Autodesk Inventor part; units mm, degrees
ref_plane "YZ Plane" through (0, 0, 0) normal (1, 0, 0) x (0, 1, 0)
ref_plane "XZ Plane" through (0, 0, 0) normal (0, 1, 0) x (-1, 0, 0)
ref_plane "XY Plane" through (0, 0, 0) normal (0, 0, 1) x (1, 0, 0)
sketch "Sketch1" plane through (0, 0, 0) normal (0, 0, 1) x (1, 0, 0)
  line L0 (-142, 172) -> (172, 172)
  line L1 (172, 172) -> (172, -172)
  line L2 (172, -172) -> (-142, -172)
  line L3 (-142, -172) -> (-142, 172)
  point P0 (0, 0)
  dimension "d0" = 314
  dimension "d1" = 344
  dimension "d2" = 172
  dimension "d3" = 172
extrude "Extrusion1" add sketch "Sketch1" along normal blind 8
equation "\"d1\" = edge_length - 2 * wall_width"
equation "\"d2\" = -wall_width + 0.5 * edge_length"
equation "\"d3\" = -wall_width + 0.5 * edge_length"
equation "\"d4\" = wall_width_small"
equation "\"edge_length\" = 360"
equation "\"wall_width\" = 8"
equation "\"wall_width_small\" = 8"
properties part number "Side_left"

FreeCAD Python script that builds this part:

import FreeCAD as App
import Part
import Sketcher

V = App.Vector
Q = App.Units.Quantity

doc = App.newDocument("Part")
body = doc.addObject("PartDesign::Body", "Body")

sketch1 = doc.addObject("Sketcher::SketchObject", "Sketch")
body.addObject(sketch1)
sketch1.AttachmentSupport = (doc.XY_Plane, [""])
sketch1.MapMode = "FlatFace"
sketch1.addGeometry([
    Part.LineSegment(V(172, 172, 0), V(-142, 172, 0)),
    Part.LineSegment(V(-142, 172, 0), V(-142, -172, 0)),
    Part.LineSegment(V(-142, -172, 0), V(172, -172, 0)),
    Part.LineSegment(V(172, -172, 0), V(172, 172, 0)),
], False)
sketch1.addConstraint([
    Sketcher.Constraint("Coincident", 0, 2, 1, 1),
    Sketcher.Constraint("Coincident", 1, 2, 2, 1),
    Sketcher.Constraint("Coincident", 2, 2, 3, 1),
    Sketcher.Constraint("Coincident", 3, 2, 0, 1),
    Sketcher.Constraint("Horizontal", 0),
    Sketcher.Constraint("Vertical", 1),
    Sketcher.Constraint("Horizontal", 2),
    Sketcher.Constraint("Vertical", 3),
    Sketcher.Constraint("DistanceX", 0, 2, 0, 1, Q("314 mm")),
    Sketcher.Constraint("DistanceY", 1, 2, 1, 1, Q("344 mm")),
    Sketcher.Constraint("DistanceY", -1, 1, 0, 2, Q("172 mm")),
    Sketcher.Constraint("DistanceX", -1, 1, 2, 2, Q("172 mm")),
])
pad1 = doc.addObject("PartDesign::Pad", "Pad")
body.addObject(pad1)
pad1.Profile = sketch1
pad1.Length = 8

doc.recompute()
